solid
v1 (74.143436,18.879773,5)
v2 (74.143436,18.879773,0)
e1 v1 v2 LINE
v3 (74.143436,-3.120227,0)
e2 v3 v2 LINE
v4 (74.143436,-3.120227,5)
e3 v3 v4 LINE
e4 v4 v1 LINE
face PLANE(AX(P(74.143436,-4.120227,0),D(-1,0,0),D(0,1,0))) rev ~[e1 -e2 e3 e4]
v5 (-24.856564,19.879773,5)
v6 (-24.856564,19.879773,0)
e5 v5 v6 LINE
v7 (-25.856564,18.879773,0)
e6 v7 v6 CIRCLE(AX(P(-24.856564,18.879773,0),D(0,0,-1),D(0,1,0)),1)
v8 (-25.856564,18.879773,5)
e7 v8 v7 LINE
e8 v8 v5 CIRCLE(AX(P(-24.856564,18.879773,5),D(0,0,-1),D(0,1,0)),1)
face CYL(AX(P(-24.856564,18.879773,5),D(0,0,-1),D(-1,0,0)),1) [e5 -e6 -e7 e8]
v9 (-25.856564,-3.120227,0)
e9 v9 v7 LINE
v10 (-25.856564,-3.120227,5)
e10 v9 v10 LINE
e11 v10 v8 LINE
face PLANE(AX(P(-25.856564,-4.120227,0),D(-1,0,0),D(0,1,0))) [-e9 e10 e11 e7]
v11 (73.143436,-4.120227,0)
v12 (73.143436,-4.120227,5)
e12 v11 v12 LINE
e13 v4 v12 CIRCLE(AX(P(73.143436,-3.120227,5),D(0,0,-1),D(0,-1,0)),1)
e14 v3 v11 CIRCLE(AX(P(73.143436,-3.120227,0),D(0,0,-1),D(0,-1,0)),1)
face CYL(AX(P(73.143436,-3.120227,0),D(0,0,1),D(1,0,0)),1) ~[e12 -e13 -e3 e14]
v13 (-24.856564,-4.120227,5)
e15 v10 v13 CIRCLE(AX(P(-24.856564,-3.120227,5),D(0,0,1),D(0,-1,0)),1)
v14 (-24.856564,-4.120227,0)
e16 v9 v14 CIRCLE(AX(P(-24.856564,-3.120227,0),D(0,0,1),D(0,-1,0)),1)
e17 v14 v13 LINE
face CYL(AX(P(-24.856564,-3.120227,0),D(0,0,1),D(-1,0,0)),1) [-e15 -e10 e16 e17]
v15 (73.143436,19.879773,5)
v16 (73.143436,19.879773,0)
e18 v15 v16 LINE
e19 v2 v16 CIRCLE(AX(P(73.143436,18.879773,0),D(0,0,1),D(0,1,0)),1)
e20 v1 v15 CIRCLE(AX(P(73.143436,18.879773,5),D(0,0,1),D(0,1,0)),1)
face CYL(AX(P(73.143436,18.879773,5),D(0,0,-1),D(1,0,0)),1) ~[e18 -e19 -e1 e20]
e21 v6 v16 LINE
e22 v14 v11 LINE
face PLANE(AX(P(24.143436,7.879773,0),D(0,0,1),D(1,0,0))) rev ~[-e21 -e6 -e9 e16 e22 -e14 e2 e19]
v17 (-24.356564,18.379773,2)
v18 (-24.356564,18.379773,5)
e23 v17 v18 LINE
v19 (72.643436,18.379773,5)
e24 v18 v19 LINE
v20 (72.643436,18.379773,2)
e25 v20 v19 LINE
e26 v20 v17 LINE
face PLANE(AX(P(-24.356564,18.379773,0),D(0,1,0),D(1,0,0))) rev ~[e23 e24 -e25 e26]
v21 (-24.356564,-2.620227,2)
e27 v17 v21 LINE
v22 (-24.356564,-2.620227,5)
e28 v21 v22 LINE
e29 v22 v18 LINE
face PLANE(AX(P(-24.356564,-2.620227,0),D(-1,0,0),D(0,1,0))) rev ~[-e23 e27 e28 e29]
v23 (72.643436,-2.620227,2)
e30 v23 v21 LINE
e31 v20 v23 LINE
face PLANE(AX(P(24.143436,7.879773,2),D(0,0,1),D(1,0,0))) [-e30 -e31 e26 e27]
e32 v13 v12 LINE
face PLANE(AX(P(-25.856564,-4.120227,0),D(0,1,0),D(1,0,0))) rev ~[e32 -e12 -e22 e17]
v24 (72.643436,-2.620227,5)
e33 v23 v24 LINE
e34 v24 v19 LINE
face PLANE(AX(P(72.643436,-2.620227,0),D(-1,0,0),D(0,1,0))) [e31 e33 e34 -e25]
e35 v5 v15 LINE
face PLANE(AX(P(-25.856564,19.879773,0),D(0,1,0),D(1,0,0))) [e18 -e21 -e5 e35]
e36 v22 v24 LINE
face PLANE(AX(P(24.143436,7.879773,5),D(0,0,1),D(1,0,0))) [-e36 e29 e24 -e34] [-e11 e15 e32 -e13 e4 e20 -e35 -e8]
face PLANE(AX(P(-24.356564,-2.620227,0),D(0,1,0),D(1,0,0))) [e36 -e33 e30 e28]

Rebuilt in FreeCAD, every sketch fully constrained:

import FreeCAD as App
import Part
import Sketcher

V = App.Vector


def edges_at(feature, points):
    """Names of the edges that pass closest to the given points."""
    edges = feature.Shape.Edges
    near = lambda p: min(range(len(edges)), key=lambda i: edges[i].distToShape(Part.Vertex(*p))[0])
    return sorted({f"Edge{near(p) + 1}" for p in points})

doc = App.newDocument("Part")
params = doc.addObject("Spreadsheet::Sheet", "Params")
for row, (alias, value) in enumerate([
    ("sketch1_width", "100 mm"),
    ("sketch1_height", "24 mm"),
    ("pad1_length", "2 mm"),
    ("sketch2_width", "100 mm"),
    ("sketch2_width2", "97 mm"),
    ("sketch2_height", "24 mm"),
    ("sketch2_height2", "21 mm"),
    ("pad2_length", "5 mm"),
    ("fillet_radius", "1 mm"),
], start=1):
    params.set(f"A{row}", alias)
    params.set(f"B{row}", "=" + value)
    params.setAlias(f"B{row}", alias)

body = doc.addObject("PartDesign::Body", "Body")

# Sketch on XY plane
sketch1 = body.newObject("Sketcher::SketchObject", "Sketch")
sketch1.AttachmentSupport = (doc.getObject("XY_Plane"), [""])
sketch1.MapMode = "FlatFace"
sketch1.addGeometry(Part.LineSegment(V(-26, 20, 0), V(-26, -4, 0)), False)
sketch1.addGeometry(Part.LineSegment(V(-26, -4, 0), V(74, -4, 0)), False)
sketch1.addGeometry(Part.LineSegment(V(74, -4, 0), V(74, 20, 0)), False)
sketch1.addGeometry(Part.LineSegment(V(74, 20, 0), V(-26, 20, 0)), False)
sketch1.addConstraint(Sketcher.Constraint("Coincident", 0, 2, 1, 1))
sketch1.addConstraint(Sketcher.Constraint("Coincident", 1, 2, 2, 1))
sketch1.addConstraint(Sketcher.Constraint("Coincident", 2, 2, 3, 1))
sketch1.addConstraint(Sketcher.Constraint("Coincident", 3, 2, 0, 1))
sketch1.addConstraint(Sketcher.Constraint("Vertical", 0))
sketch1.addConstraint(Sketcher.Constraint("Horizontal", 1))
sketch1.addConstraint(Sketcher.Constraint("Vertical", 2))
sketch1.addConstraint(Sketcher.Constraint("Horizontal", 3))
sketch1.addConstraint(Sketcher.Constraint("DistanceX", 1, 1, 1, 2, 100.0))
sketch1.addConstraint(Sketcher.Constraint("DistanceY", 0, 2, 0, 1, 24.0))
sketch1.addConstraint(Sketcher.Constraint("DistanceX", 0, 2, -1, 1, 25.856564))
sketch1.addConstraint(Sketcher.Constraint("DistanceY", 0, 2, -1, 1, 4.120227))
sketch1.setExpression("Constraints[8]", "Params.sketch1_width")
sketch1.setExpression("Constraints[9]", "Params.sketch1_height")
pad1 = body.newObject("PartDesign::Pad", "Pad")
pad1.Profile = sketch1
pad1.setExpression("Length", "Params.pad1_length")

# Sketch on XY plane
sketch2 = body.newObject("Sketcher::SketchObject", "Sketch001")
sketch2.AttachmentSupport = (doc.getObject("XY_Plane"), [""])
sketch2.MapMode = "FlatFace"
sketch2.addGeometry(Part.LineSegment(V(-26, 20, 0), V(-26, -4, 0)), False)
sketch2.addGeometry(Part.LineSegment(V(-26, -4, 0), V(74, -4, 0)), False)
sketch2.addGeometry(Part.LineSegment(V(74, -4, 0), V(74, 20, 0)), False)
sketch2.addGeometry(Part.LineSegment(V(74, 20, 0), V(-26, 20, 0)), False)
sketch2.addGeometry(Part.LineSegment(V(73, -3, 0), V(-24, -3, 0)), False)
sketch2.addGeometry(Part.LineSegment(V(-24, -3, 0), V(-24, 18, 0)), False)
sketch2.addGeometry(Part.LineSegment(V(-24, 18, 0), V(73, 18, 0)), False)
sketch2.addGeometry(Part.LineSegment(V(73, 18, 0), V(73, -3, 0)), False)
sketch2.addConstraint(Sketcher.Constraint("Coincident", 0, 2, 1, 1))
sketch2.addConstraint(Sketcher.Constraint("Coincident", 1, 2, 2, 1))
sketch2.addConstraint(Sketcher.Constraint("Coincident", 2, 2, 3, 1))
sketch2.addConstraint(Sketcher.Constraint("Coincident", 3, 2, 0, 1))
sketch2.addConstraint(Sketcher.Constraint("Coincident", 4, 2, 5, 1))
sketch2.addConstraint(Sketcher.Constraint("Coincident", 5, 2, 6, 1))
sketch2.addConstraint(Sketcher.Constraint("Coincident", 6, 2, 7, 1))
sketch2.addConstraint(Sketcher.Constraint("Coincident", 7, 2, 4, 1))
sketch2.addConstraint(Sketcher.Constraint("Vertical", 0))
sketch2.addConstraint(Sketcher.Constraint("Horizontal", 1))
sketch2.addConstraint(Sketcher.Constraint("Vertical", 2))
sketch2.addConstraint(Sketcher.Constraint("Horizontal", 3))
sketch2.addConstraint(Sketcher.Constraint("Horizontal", 4))
sketch2.addConstraint(Sketcher.Constraint("Vertical", 5))
sketch2.addConstraint(Sketcher.Constraint("Horizontal", 6))
sketch2.addConstraint(Sketcher.Constraint("Vertical", 7))
sketch2.addConstraint(Sketcher.Constraint("DistanceX", 1, 1, 1, 2, 100.0))
sketch2.addConstraint(Sketcher.Constraint("DistanceX", 4, 2, 4, 1, 97.0))
sketch2.addConstraint(Sketcher.Constraint("DistanceY", 0, 2, 0, 1, 24.0))
sketch2.addConstraint(Sketcher.Constraint("DistanceY", 5, 1, 5, 2, 21.0))
sketch2.addConstraint(Sketcher.Constraint("DistanceX", 0, 2, 4, 2, 1.5))
sketch2.addConstraint(Sketcher.Constraint("DistanceY", 0, 2, 4, 2, 1.5))
sketch2.addConstraint(Sketcher.Constraint("DistanceX", 0, 2, -1, 1, 25.856564))
sketch2.addConstraint(Sketcher.Constraint("DistanceY", 0, 2, -1, 1, 4.120227))
sketch2.setExpression("Constraints[16]", "Params.sketch2_width")
sketch2.setExpression("Constraints[17]", "Params.sketch2_width2")
sketch2.setExpression("Constraints[18]", "Params.sketch2_height")
sketch2.setExpression("Constraints[19]", "Params.sketch2_height2")
pad2 = body.newObject("PartDesign::Pad", "Pad001")
pad2.Profile = sketch2
pad2.setExpression("Length", "Params.pad2_length")
doc.recompute()

fillet = body.newObject("PartDesign::Fillet", "Fillet")
fillet.Base = (pad2, edges_at(pad2, [
    (74.143, 19.88, 2.5),
    (74.143, -4.12, 2.5),
    (-25.857, -4.12, 2.5),
    (-25.857, 19.88, 2.5),
]))
fillet.setExpression("Radius", "Params.fillet_radius")

doc.recompute()
